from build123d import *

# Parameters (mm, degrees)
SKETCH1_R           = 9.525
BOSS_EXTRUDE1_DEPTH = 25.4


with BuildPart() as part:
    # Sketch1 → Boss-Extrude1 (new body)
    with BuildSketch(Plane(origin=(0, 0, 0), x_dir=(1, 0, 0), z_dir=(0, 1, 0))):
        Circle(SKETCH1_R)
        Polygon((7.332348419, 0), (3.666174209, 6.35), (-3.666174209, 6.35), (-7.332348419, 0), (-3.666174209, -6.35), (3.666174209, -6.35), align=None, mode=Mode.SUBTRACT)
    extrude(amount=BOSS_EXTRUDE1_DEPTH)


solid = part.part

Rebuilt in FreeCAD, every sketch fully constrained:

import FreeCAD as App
import Part
import Sketcher
from FreeCAD import Vector
Q = App.Units.Quantity

doc = App.newDocument("Part")
params = doc.addObject("Spreadsheet::Sheet", "Params")
for row, (alias, value) in enumerate([
    ("sketch1_diameter", "0.75 in"),
    ("pad1_length", "1 in"),
], start=1):
    params.set(f"A{row}", alias)
    params.set(f"B{row}", "=" + value)
    params.setAlias(f"B{row}", alias)

body = doc.addObject("PartDesign::Body", "Body")

# Sketch on XZ plane
sketch1 = body.newObject("Sketcher::SketchObject", "Sketch")
sketch1.AttachmentSupport = (doc.getObject("XZ_Plane"), [""])
sketch1.MapMode = "FlatFace"
sketch1.addGeometry([
    Part.Circle(Vector(0, 0, 0), Vector(0, 0, 1), 10),  # 0
    Part.LineSegment(Vector(4, -6, 0), Vector(7, 0, 0)),  # 1
    Part.LineSegment(Vector(7, 0, 0), Vector(4, 6, 0)),  # 2
    Part.LineSegment(Vector(4, 6, 0), Vector(-4, 6, 0)),  # 3
    Part.LineSegment(Vector(-4, 6, 0), Vector(-7, 0, 0)),  # 4
    Part.LineSegment(Vector(-7, 0, 0), Vector(-4, -6, 0)),  # 5
    Part.LineSegment(Vector(-4, -6, 0), Vector(4, -6, 0)),  # 6
], False)
sketch1.addConstraint([
    Sketcher.Constraint("Coincident", 1, 2, 2, 1),
    Sketcher.Constraint("Coincident", 2, 2, 3, 1),
    Sketcher.Constraint("Coincident", 3, 2, 4, 1),
    Sketcher.Constraint("Coincident", 4, 2, 5, 1),
    Sketcher.Constraint("Coincident", 5, 2, 6, 1),
    Sketcher.Constraint("Coincident", 6, 2, 1, 1),
    Sketcher.Constraint("Horizontal", 3),
    Sketcher.Constraint("Horizontal", 6),
    Sketcher.Constraint("Coincident", 0, 3, -1, 1),
    Sketcher.Constraint("Symmetric", 1, 2, 4, 2, -1, 1),
    Sketcher.Constraint("Symmetric", 2, 2, 5, 2, -1, 1),
    Sketcher.Constraint("PointOnObject", 1, 2, -1),
    Sketcher.Constraint("Parallel", 1, 4),
    Sketcher.Constraint("Vertical", 3, 2, 5, 2),
    Sketcher.Constraint("Diameter", 0, Q("0.75 in")),
    Sketcher.Constraint("Angle", 1, Q("60 deg")),
    Sketcher.Constraint("DistanceY", 5, 2, 3, 2, Q("0.5 in")),
    Sketcher.Constraint("DistanceX", 3, 2, 3, 1, Q("7.332348 mm")),
])
sketch1.setExpression("Constraints[14]", "Params.sketch1_diameter")
pad1 = body.newObject("PartDesign::Pad", "Pad")
pad1.Profile = sketch1
pad1.setExpression("Length", "Params.pad1_length")
pad1.Reversed = True

doc.recompute()
